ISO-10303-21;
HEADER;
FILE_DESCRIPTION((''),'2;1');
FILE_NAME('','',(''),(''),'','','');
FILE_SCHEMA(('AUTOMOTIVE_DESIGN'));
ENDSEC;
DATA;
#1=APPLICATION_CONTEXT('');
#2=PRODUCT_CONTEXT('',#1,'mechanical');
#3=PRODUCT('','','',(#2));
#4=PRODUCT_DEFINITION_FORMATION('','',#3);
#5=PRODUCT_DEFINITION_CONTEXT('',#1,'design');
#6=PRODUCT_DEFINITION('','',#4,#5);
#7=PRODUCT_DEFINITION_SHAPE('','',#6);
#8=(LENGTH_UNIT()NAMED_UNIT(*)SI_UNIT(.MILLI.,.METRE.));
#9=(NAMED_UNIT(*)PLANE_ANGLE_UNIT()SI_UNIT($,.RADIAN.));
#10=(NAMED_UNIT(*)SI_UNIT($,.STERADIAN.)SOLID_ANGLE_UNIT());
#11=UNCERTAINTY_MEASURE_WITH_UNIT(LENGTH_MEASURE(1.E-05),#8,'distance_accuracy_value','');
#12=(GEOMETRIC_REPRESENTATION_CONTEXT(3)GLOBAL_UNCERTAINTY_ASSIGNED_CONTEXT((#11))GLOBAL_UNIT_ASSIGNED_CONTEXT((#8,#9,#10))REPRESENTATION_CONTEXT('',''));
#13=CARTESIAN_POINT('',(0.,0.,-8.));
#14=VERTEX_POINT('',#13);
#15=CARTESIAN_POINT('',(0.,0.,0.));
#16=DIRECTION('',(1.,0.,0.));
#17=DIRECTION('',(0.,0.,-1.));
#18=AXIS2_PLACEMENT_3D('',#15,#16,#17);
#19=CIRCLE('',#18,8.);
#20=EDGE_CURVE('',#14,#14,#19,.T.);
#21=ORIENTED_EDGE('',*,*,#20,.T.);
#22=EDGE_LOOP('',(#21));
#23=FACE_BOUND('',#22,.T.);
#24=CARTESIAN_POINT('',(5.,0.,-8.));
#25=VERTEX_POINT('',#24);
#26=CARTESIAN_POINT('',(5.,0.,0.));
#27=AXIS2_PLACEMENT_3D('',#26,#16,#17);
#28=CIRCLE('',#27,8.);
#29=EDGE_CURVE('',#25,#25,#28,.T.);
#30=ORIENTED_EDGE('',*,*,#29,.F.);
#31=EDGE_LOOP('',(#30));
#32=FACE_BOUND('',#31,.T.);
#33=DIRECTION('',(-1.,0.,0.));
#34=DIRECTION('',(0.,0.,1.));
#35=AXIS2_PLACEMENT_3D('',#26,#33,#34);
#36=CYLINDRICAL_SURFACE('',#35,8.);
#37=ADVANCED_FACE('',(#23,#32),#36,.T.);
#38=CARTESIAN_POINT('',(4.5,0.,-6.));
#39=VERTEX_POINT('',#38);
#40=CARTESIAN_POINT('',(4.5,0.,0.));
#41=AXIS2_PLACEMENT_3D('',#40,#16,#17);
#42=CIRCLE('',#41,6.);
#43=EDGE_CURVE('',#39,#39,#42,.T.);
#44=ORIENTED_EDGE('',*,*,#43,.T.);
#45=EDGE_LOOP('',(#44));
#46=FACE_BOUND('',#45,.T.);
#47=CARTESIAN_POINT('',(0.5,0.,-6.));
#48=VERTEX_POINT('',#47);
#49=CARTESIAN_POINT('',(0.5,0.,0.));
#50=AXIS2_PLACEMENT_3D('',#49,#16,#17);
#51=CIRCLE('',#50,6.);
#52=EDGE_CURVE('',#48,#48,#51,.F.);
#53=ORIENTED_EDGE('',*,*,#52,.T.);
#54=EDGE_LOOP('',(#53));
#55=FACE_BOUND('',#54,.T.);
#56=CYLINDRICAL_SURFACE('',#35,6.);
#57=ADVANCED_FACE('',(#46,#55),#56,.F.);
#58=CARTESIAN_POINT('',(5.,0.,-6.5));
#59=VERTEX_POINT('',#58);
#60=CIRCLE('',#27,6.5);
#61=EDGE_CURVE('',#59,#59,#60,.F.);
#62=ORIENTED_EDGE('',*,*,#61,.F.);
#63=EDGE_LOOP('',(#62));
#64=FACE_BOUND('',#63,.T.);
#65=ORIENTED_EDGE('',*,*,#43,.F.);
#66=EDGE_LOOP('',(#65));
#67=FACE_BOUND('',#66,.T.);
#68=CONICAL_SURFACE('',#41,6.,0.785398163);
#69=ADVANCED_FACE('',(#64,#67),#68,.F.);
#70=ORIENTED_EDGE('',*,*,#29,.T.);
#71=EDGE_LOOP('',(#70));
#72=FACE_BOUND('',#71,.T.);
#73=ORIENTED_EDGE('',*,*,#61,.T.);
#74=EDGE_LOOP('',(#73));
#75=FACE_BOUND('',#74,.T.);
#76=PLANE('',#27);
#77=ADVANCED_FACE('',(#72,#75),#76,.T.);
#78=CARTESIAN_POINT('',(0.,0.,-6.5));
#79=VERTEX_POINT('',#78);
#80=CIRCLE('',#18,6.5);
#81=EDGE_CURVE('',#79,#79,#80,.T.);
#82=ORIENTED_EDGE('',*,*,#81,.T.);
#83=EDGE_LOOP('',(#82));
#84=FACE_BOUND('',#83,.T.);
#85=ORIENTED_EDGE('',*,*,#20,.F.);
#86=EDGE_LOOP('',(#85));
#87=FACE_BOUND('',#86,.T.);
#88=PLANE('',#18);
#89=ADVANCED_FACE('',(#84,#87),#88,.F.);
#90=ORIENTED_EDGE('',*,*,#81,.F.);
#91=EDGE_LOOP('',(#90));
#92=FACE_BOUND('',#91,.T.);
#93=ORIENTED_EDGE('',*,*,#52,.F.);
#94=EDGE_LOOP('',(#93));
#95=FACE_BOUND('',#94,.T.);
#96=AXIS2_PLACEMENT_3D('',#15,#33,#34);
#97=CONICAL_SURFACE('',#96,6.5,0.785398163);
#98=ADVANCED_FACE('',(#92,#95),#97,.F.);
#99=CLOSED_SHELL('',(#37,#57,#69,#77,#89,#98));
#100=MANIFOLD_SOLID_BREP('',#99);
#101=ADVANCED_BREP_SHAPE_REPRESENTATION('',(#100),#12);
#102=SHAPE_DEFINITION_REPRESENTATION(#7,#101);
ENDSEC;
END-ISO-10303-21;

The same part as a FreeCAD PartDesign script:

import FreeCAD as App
import Part
import Sketcher
Q = App.Units.Quantity


def edges_at(feature, points):
    """Names of the edges that pass closest to the given points."""
    edges = feature.Shape.Edges
    near = lambda p: min(range(len(edges)), key=lambda i: edges[i].distToShape(Part.Vertex(*p))[0])
    return sorted({f"Edge{near(p) + 1}" for p in points})

doc = App.newDocument("Part")
body = doc.addObject("PartDesign::Body", "Body")

sketch1 = doc.addObject("Sketcher::SketchObject", "Sketch")
body.addObject(sketch1)
sketch1.AttachmentSupport = (doc.YZ_Plane, [""])
sketch1.MapMode = "FlatFace"
sketch1.addGeometry([
    Part.Circle(App.Vector(0, 0, 0), App.Vector(0, 0, 1), 8),
    Part.Circle(App.Vector(0, 0, 0), App.Vector(0, 0, 1), 6),
], False)
sketch1.addConstraint([
    Sketcher.Constraint("Coincident", 0, 3, -1, 1),
    Sketcher.Constraint("Coincident", 1, 3, -1, 1),
    Sketcher.Constraint("Diameter", 0, Q("16 mm")),
    Sketcher.Constraint("Diameter", 1, Q("12 mm")),
])
pad1 = doc.addObject("PartDesign::Pad", "Pad")
body.addObject(pad1)
pad1.Profile = sketch1
pad1.Length = 5
doc.recompute()

chamfer = doc.addObject("PartDesign::Chamfer", "Chamfer")
body.addObject(chamfer)
chamfer.Base = (pad1, edges_at(pad1, [(0, 0, 6), (5, 0, 6)]))
chamfer.Size = 0.5

doc.recompute()
